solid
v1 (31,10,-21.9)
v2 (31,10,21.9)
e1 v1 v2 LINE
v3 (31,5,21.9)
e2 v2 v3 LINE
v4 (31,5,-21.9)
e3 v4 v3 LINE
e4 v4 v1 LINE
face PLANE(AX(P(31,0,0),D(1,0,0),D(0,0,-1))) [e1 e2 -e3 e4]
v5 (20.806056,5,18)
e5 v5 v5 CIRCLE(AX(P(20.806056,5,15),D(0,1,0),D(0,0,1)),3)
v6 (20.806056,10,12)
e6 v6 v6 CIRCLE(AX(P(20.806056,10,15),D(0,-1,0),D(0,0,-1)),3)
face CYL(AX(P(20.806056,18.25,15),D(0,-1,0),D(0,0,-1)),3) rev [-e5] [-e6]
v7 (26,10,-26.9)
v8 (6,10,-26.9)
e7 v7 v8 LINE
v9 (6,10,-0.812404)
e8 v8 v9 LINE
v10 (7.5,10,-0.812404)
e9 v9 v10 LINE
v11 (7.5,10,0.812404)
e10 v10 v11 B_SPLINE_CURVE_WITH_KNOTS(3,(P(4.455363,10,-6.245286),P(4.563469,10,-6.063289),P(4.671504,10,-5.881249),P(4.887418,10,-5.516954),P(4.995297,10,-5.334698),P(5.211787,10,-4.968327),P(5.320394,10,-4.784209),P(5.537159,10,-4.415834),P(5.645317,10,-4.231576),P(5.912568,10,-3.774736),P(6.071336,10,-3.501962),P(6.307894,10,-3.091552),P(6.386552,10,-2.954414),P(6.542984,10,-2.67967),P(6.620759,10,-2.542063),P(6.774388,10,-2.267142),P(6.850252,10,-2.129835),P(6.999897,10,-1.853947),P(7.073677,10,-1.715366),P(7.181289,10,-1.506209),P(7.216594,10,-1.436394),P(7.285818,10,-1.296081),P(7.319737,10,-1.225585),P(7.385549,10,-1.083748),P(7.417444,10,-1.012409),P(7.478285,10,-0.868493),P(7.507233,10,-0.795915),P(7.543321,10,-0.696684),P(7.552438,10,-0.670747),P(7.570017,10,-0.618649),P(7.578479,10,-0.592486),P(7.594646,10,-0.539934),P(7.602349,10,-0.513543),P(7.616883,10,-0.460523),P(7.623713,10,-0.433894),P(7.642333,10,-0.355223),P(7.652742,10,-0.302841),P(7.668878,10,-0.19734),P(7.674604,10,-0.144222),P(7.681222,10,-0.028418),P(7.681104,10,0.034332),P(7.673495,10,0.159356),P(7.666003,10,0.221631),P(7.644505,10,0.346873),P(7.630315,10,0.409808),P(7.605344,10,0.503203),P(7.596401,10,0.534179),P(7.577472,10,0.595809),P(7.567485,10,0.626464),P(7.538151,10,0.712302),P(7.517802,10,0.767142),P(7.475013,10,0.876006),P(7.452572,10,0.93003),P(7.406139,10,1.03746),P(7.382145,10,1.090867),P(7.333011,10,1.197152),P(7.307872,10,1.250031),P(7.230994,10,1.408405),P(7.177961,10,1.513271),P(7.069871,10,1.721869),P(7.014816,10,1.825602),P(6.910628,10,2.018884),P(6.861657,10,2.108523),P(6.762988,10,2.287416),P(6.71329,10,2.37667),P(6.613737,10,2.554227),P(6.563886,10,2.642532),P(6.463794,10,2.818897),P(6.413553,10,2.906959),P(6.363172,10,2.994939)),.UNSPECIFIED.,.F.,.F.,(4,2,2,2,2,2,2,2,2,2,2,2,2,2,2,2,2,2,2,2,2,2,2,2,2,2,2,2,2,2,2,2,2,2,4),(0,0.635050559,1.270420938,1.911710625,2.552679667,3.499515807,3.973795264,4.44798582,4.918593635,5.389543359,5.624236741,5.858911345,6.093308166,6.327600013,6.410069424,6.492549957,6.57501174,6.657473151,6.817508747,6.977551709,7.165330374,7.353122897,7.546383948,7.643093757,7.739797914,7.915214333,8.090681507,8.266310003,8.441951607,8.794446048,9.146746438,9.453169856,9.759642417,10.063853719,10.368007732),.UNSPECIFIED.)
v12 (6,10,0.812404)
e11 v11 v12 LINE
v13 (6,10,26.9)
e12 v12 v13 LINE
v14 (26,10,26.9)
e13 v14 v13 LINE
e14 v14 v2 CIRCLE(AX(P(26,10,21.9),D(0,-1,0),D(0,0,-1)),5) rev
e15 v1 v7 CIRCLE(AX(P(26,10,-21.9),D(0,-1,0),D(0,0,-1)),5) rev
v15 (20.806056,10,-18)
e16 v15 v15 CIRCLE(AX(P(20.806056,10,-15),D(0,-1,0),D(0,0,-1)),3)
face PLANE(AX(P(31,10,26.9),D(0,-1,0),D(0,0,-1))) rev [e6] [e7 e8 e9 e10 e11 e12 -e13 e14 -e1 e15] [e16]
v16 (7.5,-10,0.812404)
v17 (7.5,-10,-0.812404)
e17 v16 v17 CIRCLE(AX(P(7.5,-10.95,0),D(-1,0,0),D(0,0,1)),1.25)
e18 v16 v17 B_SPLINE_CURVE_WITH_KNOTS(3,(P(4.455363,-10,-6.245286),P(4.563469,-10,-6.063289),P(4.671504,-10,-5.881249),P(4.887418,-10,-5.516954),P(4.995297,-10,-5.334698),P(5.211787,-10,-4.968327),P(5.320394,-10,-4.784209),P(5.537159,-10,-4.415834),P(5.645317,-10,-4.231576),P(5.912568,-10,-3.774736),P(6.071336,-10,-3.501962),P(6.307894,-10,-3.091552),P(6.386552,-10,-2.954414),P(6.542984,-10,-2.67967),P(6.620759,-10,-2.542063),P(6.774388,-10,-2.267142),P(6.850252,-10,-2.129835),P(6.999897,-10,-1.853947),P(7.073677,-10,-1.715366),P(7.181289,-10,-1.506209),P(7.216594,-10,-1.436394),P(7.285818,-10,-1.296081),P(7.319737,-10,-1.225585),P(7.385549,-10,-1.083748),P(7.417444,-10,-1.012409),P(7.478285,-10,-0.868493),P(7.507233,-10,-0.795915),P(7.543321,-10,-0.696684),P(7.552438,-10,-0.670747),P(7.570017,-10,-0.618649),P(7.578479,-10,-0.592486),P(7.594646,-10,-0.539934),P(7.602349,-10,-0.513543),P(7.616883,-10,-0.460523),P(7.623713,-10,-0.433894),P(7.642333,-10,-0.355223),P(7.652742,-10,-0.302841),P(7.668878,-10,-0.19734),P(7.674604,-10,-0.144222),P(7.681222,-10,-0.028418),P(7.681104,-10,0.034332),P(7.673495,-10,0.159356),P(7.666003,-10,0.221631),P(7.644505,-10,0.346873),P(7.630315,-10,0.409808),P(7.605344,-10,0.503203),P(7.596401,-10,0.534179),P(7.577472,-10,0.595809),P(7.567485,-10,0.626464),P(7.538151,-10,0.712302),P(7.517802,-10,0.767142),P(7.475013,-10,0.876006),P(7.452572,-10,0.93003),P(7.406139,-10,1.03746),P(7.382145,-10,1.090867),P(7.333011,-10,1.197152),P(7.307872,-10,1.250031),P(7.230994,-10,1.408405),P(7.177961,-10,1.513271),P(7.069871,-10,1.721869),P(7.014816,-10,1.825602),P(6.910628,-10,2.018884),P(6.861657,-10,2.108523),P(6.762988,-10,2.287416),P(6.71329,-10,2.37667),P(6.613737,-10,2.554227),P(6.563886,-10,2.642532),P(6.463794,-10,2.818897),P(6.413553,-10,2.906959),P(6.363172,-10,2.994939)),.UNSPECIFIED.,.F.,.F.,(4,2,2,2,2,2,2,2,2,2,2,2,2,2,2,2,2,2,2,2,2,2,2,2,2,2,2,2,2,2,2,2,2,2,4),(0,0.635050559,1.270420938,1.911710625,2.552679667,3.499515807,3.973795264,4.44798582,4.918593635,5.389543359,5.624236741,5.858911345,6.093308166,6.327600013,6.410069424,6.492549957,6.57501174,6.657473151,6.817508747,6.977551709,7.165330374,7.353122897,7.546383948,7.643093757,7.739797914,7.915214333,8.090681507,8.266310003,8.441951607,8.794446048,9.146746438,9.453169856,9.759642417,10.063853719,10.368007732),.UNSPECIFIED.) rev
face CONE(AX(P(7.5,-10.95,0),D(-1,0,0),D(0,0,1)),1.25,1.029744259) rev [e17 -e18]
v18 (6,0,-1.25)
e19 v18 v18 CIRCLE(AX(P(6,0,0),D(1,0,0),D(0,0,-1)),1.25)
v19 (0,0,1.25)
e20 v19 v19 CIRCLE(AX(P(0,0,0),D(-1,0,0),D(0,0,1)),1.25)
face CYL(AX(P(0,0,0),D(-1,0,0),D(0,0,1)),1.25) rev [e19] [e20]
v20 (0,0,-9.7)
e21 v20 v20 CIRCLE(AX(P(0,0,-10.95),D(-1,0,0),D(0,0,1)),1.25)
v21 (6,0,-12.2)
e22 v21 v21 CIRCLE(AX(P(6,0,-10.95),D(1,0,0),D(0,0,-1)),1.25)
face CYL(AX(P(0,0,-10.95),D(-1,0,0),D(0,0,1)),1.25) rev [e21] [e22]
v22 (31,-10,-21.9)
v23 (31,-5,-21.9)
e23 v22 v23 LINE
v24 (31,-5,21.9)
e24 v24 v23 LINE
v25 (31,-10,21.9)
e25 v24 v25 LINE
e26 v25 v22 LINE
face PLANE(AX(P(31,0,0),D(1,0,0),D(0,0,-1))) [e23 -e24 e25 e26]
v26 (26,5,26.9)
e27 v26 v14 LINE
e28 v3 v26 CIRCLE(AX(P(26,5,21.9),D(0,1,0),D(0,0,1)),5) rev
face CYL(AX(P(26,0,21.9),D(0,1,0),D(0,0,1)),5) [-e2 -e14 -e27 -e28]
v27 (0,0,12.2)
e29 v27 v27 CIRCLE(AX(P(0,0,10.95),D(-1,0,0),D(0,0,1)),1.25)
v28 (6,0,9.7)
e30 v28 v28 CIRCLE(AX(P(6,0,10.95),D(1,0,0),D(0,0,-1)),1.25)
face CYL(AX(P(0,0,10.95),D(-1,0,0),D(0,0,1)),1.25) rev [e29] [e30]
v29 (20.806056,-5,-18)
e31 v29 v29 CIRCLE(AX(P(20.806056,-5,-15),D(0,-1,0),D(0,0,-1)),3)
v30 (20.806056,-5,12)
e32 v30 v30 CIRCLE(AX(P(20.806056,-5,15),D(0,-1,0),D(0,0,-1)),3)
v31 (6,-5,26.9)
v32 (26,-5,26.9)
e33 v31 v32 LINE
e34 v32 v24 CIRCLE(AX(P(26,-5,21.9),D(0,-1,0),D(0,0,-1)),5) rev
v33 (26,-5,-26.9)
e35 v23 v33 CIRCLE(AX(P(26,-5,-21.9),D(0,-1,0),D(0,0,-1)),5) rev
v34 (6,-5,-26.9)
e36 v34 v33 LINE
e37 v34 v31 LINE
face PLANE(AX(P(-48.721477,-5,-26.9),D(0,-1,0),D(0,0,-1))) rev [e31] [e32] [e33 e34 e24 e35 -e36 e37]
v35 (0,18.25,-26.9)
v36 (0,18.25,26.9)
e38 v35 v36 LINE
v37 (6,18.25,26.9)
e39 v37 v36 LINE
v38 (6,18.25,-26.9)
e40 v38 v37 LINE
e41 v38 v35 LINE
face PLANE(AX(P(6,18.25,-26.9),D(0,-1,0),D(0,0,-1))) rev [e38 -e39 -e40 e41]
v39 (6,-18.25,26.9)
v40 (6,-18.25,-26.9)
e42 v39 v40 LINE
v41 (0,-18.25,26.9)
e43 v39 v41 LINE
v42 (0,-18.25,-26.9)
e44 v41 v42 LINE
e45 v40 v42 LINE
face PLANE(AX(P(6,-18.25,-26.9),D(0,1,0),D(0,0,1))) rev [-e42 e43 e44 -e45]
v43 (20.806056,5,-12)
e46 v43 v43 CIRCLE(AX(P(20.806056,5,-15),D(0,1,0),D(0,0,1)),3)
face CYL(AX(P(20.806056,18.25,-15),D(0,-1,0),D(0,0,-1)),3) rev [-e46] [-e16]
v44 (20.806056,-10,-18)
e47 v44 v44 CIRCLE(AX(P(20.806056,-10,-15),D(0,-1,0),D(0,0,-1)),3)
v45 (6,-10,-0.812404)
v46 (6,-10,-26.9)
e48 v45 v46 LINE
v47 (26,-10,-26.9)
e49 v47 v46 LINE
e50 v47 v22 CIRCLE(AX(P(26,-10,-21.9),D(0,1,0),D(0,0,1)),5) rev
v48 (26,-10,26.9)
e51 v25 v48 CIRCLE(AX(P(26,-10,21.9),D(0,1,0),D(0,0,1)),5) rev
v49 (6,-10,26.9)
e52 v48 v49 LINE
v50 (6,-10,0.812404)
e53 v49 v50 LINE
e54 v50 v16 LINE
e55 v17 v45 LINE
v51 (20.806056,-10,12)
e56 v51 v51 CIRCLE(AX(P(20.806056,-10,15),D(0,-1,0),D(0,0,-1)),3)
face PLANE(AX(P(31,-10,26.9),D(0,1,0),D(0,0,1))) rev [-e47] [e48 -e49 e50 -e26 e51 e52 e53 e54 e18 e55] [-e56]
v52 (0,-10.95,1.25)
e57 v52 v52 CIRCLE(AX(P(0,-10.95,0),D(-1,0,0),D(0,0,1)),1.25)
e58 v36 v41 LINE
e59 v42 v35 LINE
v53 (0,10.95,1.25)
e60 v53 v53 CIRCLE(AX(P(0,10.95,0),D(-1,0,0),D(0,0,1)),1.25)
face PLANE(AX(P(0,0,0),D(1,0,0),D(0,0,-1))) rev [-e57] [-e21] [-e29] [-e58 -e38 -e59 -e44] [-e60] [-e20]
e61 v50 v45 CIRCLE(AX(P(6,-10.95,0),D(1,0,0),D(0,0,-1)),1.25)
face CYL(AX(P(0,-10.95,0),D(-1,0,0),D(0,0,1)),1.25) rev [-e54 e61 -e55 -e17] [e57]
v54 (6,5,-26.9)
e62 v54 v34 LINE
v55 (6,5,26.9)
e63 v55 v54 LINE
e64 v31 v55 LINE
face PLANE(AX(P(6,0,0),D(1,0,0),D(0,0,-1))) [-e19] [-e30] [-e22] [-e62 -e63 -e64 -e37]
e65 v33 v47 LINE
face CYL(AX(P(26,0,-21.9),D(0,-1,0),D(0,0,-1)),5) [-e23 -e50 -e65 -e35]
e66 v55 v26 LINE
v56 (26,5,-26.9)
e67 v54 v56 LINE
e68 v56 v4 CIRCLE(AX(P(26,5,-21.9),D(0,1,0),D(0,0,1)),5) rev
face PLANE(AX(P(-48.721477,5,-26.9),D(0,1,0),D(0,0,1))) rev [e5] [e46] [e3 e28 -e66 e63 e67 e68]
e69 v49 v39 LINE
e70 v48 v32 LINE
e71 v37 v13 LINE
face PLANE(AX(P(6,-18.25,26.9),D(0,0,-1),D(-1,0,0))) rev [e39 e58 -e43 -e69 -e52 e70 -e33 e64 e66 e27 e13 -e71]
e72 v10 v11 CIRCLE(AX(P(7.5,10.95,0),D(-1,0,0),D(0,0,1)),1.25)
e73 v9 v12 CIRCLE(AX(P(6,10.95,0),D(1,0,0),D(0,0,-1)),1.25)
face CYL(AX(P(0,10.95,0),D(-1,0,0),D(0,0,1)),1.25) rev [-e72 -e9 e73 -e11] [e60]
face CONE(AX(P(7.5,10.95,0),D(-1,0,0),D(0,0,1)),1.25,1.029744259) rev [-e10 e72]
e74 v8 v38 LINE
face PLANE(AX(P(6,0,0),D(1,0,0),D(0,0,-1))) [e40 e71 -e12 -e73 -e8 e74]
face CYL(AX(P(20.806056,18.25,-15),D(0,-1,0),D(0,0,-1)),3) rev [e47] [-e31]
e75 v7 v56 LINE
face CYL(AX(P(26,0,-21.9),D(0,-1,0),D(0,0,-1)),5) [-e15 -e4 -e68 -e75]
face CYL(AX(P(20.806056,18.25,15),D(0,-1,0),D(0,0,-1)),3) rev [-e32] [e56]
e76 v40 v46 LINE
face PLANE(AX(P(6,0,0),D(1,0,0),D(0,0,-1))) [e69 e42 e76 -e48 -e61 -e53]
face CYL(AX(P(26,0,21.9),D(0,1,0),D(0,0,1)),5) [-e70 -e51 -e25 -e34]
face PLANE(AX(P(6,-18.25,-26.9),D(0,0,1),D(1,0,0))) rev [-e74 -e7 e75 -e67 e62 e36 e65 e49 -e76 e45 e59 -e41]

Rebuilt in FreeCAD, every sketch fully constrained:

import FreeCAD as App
import Part
import Sketcher

V = App.Vector


def edges_at(feature, points):
    """Names of the edges that pass closest to the given points."""
    edges = feature.Shape.Edges
    near = lambda p: min(range(len(edges)), key=lambda i: edges[i].distToShape(Part.Vertex(*p))[0])
    return sorted({f"Edge{near(p) + 1}" for p in points})

doc = App.newDocument("Part")
body = doc.addObject("PartDesign::Body", "Body")

# Sketch on YZ plane
sketch1 = body.newObject("Sketcher::SketchObject", "Sketch")
sketch1.AttachmentSupport = (doc.getObject("YZ_Plane"), [""])
sketch1.MapMode = "FlatFace"
sketch1.addGeometry(Part.LineSegment(V(18, 27, 0), V(-18, 27, 0)), False)
sketch1.addGeometry(Part.LineSegment(V(-18, 27, 0), V(-18, -27, 0)), False)
sketch1.addGeometry(Part.LineSegment(V(-18, -27, 0), V(18, -27, 0)), False)
sketch1.addGeometry(Part.LineSegment(V(18, -27, 0), V(18, 27, 0)), False)
sketch1.addConstraint(Sketcher.Constraint("Coincident", 0, 2, 1, 1))
sketch1.addConstraint(Sketcher.Constraint("Coincident", 1, 2, 2, 1))
sketch1.addConstraint(Sketcher.Constraint("Coincident", 2, 2, 3, 1))
sketch1.addConstraint(Sketcher.Constraint("Coincident", 3, 2, 0, 1))
sketch1.addConstraint(Sketcher.Constraint("Horizontal", 0))
sketch1.addConstraint(Sketcher.Constraint("Vertical", 1))
sketch1.addConstraint(Sketcher.Constraint("Horizontal", 2))
sketch1.addConstraint(Sketcher.Constraint("Vertical", 3))
sketch1.addConstraint(Sketcher.Constraint("Symmetric", 0, 2, 2, 2, -1, 1))
sketch1.addConstraint(Sketcher.Constraint("DistanceX", 0, 2, 0, 1, 36.5))
sketch1.addConstraint(Sketcher.Constraint("DistanceY", 1, 2, 1, 1, 53.8))
pad1 = body.newObject("PartDesign::Pad", "Pad")
pad1.Profile = sketch1
pad1.Length = 6

# Sketch on YZ plane
sketch2 = body.newObject("Sketcher::SketchObject", "Sketch001")
sketch2.AttachmentSupport = (doc.getObject("YZ_Plane"), [""])
sketch2.MapMode = "FlatFace"
sketch2.AttachmentOffset = App.Placement(V(0, 0, 6), App.Rotation())
sketch2.addGeometry(Part.LineSegment(V(10, 27, 0), V(-10, 27, 0)), False)
sketch2.addGeometry(Part.LineSegment(V(-10, 27, 0), V(-10, -27, 0)), False)
sketch2.addGeometry(Part.LineSegment(V(-10, -27, 0), V(10, -27, 0)), False)
sketch2.addGeometry(Part.LineSegment(V(10, -27, 0), V(10, 27, 0)), False)
sketch2.addConstraint(Sketcher.Constraint("Coincident", 0, 2, 1, 1))
sketch2.addConstraint(Sketcher.Constraint("Coincident", 1, 2, 2, 1))
sketch2.addConstraint(Sketcher.Constraint("Coincident", 2, 2, 3, 1))
sketch2.addConstraint(Sketcher.Constraint("Coincident", 3, 2, 0, 1))
sketch2.addConstraint(Sketcher.Constraint("Horizontal", 0))
sketch2.addConstraint(Sketcher.Constraint("Vertical", 1))
sketch2.addConstraint(Sketcher.Constraint("Horizontal", 2))
sketch2.addConstraint(Sketcher.Constraint("Vertical", 3))
sketch2.addConstraint(Sketcher.Constraint("Symmetric", 0, 2, 2, 2, -1, 1))
sketch2.addConstraint(Sketcher.Constraint("DistanceX", 0, 2, 0, 1, 20.0))
sketch2.addConstraint(Sketcher.Constraint("DistanceY", 1, 2, 1, 1, 53.8))
pad2 = body.newObject("PartDesign::Pad", "Pad001")
pad2.Profile = sketch2
pad2.Length = 25

# Sketch on YZ plane
sketch3 = body.newObject("Sketcher::SketchObject", "Sketch002")
sketch3.AttachmentSupport = (doc.getObject("YZ_Plane"), [""])
sketch3.MapMode = "FlatFace"
sketch3.AttachmentOffset = App.Placement(V(0, 0, 31), App.Rotation())
sketch3.addGeometry(Part.LineSegment(V(5, 27, 0), V(-5, 27, 0)), False)
sketch3.addGeometry(Part.LineSegment(V(-5, 27, 0), V(-5, -27, 0)), False)
sketch3.addGeometry(Part.LineSegment(V(-5, -27, 0), V(5, -27, 0)), False)
sketch3.addGeometry(Part.LineSegment(V(5, -27, 0), V(5, 27, 0)), False)
sketch3.addConstraint(Sketcher.Constraint("Coincident", 0, 2, 1, 1))
sketch3.addConstraint(Sketcher.Constraint("Coincident", 1, 2, 2, 1))
sketch3.addConstraint(Sketcher.Constraint("Coincident", 2, 2, 3, 1))
sketch3.addConstraint(Sketcher.Constraint("Coincident", 3, 2, 0, 1))
sketch3.addConstraint(Sketcher.Constraint("Horizontal", 0))
sketch3.addConstraint(Sketcher.Constraint("Vertical", 1))
sketch3.addConstraint(Sketcher.Constraint("Horizontal", 2))
sketch3.addConstraint(Sketcher.Constraint("Vertical", 3))
sketch3.addConstraint(Sketcher.Constraint("Symmetric", 0, 2, 2, 2, -1, 1))
sketch3.addConstraint(Sketcher.Constraint("DistanceX", 0, 2, 0, 1, 10.0))
sketch3.addConstraint(Sketcher.Constraint("DistanceY", 1, 2, 1, 1, 53.8))
pocket1 = body.newObject("PartDesign::Pocket", "Pocket")
pocket1.Profile = sketch3
pocket1.Length = 25

# Sketch on YZ plane
sketch4 = body.newObject("Sketcher::SketchObject", "Sketch003")
sketch4.AttachmentSupport = (doc.getObject("YZ_Plane"), [""])
sketch4.MapMode = "FlatFace"
sketch4.addGeometry(Part.Circle(V(0, -10.9, 0), V(0, 0, 1), 1.2), False)
sketch4.addGeometry(Part.Circle(V(10.9, 0, 0), V(0, 0, 1), 1.2), False)
sketch4.addGeometry(Part.Circle(V(0, 0, 0), V(0, 0, 1), 1.2), False)
sketch4.addGeometry(Part.Circle(V(-10.9, 0, 0), V(0, 0, 1), 1.2), False)
sketch4.addGeometry(Part.Circle(V(0, 10.9, 0), V(0, 0, 1), 1.2), False)
sketch4.addConstraint(Sketcher.Constraint("Coincident", 2, 3, -1, 1))
sketch4.addConstraint(Sketcher.Constraint("Equal", 0, 1))
sketch4.addConstraint(Sketcher.Constraint("Equal", 1, 2))
sketch4.addConstraint(Sketcher.Constraint("Equal", 2, 3))
sketch4.addConstraint(Sketcher.Constraint("Equal", 3, 4))
sketch4.addConstraint(Sketcher.Constraint("Symmetric", 1, 3, 3, 3, -1, 1))
sketch4.addConstraint(Sketcher.Constraint("Symmetric", 0, 3, 4, 3, -1, 1))
sketch4.addConstraint(Sketcher.Constraint("PointOnObject", 0, 3, -2))
sketch4.addConstraint(Sketcher.Constraint("PointOnObject", 1, 3, -1))
sketch4.addConstraint(Sketcher.Constraint("Diameter", 0, 2.5))
sketch4.addConstraint(Sketcher.Constraint("DistanceX", 3, 3, 1, 3, 21.9))
sketch4.addConstraint(Sketcher.Constraint("DistanceY", 0, 3, 4, 3, 21.9))
doc.recompute()
hole = body.newObject("PartDesign::Hole", "Hole")
hole.Profile = sketch4
hole.ThreadType = "None"
hole.Diameter = 2.5
hole.DepthType = "Dimension"
hole.Depth = 7.5
hole.DrillPoint = "Angled"
hole.DrillPointAngle = 118
hole.Reversed = True

# Sketch on XZ plane
sketch5 = body.newObject("Sketcher::SketchObject", "Sketch004")
sketch5.AttachmentSupport = (doc.getObject("XZ_Plane"), [""])
sketch5.MapMode = "FlatFace"
sketch5.AttachmentOffset = App.Placement(V(0, 0, 10), App.Rotation())
sketch5.addGeometry(Part.Circle(V(20.8, 15, 0), V(0, 0, 1), 3), False)
sketch5.addGeometry(Part.Circle(V(20.8, -15, 0), V(0, 0, 1), 3), False)
sketch5.addConstraint(Sketcher.Constraint("Equal", 0, 1))
sketch5.addConstraint(Sketcher.Constraint("Symmetric", 0, 3, 1, 3, -1))
sketch5.addConstraint(Sketcher.Constraint("Diameter", 0, 6.0))
sketch5.addConstraint(Sketcher.Constraint("DistanceY", -1, 1, 0, 3, 15.0))
sketch5.addConstraint(Sketcher.Constraint("DistanceX", -1, 1, 0, 3, 20.806056))
pocket2 = body.newObject("PartDesign::Pocket", "Pocket001")
pocket2.Profile = sketch5
pocket2.Type = "ThroughAll"
doc.recompute()

fillet = body.newObject("PartDesign::Fillet", "Fillet")
fillet.Base = (pocket2, edges_at(pocket2, [
    (31, -7.5, -26.9),
    (31, 7.5, 26.9),
    (31, 7.5, -26.9),
    (31, -7.5, 26.9),
]))
fillet.Radius = 5

doc.recompute()
